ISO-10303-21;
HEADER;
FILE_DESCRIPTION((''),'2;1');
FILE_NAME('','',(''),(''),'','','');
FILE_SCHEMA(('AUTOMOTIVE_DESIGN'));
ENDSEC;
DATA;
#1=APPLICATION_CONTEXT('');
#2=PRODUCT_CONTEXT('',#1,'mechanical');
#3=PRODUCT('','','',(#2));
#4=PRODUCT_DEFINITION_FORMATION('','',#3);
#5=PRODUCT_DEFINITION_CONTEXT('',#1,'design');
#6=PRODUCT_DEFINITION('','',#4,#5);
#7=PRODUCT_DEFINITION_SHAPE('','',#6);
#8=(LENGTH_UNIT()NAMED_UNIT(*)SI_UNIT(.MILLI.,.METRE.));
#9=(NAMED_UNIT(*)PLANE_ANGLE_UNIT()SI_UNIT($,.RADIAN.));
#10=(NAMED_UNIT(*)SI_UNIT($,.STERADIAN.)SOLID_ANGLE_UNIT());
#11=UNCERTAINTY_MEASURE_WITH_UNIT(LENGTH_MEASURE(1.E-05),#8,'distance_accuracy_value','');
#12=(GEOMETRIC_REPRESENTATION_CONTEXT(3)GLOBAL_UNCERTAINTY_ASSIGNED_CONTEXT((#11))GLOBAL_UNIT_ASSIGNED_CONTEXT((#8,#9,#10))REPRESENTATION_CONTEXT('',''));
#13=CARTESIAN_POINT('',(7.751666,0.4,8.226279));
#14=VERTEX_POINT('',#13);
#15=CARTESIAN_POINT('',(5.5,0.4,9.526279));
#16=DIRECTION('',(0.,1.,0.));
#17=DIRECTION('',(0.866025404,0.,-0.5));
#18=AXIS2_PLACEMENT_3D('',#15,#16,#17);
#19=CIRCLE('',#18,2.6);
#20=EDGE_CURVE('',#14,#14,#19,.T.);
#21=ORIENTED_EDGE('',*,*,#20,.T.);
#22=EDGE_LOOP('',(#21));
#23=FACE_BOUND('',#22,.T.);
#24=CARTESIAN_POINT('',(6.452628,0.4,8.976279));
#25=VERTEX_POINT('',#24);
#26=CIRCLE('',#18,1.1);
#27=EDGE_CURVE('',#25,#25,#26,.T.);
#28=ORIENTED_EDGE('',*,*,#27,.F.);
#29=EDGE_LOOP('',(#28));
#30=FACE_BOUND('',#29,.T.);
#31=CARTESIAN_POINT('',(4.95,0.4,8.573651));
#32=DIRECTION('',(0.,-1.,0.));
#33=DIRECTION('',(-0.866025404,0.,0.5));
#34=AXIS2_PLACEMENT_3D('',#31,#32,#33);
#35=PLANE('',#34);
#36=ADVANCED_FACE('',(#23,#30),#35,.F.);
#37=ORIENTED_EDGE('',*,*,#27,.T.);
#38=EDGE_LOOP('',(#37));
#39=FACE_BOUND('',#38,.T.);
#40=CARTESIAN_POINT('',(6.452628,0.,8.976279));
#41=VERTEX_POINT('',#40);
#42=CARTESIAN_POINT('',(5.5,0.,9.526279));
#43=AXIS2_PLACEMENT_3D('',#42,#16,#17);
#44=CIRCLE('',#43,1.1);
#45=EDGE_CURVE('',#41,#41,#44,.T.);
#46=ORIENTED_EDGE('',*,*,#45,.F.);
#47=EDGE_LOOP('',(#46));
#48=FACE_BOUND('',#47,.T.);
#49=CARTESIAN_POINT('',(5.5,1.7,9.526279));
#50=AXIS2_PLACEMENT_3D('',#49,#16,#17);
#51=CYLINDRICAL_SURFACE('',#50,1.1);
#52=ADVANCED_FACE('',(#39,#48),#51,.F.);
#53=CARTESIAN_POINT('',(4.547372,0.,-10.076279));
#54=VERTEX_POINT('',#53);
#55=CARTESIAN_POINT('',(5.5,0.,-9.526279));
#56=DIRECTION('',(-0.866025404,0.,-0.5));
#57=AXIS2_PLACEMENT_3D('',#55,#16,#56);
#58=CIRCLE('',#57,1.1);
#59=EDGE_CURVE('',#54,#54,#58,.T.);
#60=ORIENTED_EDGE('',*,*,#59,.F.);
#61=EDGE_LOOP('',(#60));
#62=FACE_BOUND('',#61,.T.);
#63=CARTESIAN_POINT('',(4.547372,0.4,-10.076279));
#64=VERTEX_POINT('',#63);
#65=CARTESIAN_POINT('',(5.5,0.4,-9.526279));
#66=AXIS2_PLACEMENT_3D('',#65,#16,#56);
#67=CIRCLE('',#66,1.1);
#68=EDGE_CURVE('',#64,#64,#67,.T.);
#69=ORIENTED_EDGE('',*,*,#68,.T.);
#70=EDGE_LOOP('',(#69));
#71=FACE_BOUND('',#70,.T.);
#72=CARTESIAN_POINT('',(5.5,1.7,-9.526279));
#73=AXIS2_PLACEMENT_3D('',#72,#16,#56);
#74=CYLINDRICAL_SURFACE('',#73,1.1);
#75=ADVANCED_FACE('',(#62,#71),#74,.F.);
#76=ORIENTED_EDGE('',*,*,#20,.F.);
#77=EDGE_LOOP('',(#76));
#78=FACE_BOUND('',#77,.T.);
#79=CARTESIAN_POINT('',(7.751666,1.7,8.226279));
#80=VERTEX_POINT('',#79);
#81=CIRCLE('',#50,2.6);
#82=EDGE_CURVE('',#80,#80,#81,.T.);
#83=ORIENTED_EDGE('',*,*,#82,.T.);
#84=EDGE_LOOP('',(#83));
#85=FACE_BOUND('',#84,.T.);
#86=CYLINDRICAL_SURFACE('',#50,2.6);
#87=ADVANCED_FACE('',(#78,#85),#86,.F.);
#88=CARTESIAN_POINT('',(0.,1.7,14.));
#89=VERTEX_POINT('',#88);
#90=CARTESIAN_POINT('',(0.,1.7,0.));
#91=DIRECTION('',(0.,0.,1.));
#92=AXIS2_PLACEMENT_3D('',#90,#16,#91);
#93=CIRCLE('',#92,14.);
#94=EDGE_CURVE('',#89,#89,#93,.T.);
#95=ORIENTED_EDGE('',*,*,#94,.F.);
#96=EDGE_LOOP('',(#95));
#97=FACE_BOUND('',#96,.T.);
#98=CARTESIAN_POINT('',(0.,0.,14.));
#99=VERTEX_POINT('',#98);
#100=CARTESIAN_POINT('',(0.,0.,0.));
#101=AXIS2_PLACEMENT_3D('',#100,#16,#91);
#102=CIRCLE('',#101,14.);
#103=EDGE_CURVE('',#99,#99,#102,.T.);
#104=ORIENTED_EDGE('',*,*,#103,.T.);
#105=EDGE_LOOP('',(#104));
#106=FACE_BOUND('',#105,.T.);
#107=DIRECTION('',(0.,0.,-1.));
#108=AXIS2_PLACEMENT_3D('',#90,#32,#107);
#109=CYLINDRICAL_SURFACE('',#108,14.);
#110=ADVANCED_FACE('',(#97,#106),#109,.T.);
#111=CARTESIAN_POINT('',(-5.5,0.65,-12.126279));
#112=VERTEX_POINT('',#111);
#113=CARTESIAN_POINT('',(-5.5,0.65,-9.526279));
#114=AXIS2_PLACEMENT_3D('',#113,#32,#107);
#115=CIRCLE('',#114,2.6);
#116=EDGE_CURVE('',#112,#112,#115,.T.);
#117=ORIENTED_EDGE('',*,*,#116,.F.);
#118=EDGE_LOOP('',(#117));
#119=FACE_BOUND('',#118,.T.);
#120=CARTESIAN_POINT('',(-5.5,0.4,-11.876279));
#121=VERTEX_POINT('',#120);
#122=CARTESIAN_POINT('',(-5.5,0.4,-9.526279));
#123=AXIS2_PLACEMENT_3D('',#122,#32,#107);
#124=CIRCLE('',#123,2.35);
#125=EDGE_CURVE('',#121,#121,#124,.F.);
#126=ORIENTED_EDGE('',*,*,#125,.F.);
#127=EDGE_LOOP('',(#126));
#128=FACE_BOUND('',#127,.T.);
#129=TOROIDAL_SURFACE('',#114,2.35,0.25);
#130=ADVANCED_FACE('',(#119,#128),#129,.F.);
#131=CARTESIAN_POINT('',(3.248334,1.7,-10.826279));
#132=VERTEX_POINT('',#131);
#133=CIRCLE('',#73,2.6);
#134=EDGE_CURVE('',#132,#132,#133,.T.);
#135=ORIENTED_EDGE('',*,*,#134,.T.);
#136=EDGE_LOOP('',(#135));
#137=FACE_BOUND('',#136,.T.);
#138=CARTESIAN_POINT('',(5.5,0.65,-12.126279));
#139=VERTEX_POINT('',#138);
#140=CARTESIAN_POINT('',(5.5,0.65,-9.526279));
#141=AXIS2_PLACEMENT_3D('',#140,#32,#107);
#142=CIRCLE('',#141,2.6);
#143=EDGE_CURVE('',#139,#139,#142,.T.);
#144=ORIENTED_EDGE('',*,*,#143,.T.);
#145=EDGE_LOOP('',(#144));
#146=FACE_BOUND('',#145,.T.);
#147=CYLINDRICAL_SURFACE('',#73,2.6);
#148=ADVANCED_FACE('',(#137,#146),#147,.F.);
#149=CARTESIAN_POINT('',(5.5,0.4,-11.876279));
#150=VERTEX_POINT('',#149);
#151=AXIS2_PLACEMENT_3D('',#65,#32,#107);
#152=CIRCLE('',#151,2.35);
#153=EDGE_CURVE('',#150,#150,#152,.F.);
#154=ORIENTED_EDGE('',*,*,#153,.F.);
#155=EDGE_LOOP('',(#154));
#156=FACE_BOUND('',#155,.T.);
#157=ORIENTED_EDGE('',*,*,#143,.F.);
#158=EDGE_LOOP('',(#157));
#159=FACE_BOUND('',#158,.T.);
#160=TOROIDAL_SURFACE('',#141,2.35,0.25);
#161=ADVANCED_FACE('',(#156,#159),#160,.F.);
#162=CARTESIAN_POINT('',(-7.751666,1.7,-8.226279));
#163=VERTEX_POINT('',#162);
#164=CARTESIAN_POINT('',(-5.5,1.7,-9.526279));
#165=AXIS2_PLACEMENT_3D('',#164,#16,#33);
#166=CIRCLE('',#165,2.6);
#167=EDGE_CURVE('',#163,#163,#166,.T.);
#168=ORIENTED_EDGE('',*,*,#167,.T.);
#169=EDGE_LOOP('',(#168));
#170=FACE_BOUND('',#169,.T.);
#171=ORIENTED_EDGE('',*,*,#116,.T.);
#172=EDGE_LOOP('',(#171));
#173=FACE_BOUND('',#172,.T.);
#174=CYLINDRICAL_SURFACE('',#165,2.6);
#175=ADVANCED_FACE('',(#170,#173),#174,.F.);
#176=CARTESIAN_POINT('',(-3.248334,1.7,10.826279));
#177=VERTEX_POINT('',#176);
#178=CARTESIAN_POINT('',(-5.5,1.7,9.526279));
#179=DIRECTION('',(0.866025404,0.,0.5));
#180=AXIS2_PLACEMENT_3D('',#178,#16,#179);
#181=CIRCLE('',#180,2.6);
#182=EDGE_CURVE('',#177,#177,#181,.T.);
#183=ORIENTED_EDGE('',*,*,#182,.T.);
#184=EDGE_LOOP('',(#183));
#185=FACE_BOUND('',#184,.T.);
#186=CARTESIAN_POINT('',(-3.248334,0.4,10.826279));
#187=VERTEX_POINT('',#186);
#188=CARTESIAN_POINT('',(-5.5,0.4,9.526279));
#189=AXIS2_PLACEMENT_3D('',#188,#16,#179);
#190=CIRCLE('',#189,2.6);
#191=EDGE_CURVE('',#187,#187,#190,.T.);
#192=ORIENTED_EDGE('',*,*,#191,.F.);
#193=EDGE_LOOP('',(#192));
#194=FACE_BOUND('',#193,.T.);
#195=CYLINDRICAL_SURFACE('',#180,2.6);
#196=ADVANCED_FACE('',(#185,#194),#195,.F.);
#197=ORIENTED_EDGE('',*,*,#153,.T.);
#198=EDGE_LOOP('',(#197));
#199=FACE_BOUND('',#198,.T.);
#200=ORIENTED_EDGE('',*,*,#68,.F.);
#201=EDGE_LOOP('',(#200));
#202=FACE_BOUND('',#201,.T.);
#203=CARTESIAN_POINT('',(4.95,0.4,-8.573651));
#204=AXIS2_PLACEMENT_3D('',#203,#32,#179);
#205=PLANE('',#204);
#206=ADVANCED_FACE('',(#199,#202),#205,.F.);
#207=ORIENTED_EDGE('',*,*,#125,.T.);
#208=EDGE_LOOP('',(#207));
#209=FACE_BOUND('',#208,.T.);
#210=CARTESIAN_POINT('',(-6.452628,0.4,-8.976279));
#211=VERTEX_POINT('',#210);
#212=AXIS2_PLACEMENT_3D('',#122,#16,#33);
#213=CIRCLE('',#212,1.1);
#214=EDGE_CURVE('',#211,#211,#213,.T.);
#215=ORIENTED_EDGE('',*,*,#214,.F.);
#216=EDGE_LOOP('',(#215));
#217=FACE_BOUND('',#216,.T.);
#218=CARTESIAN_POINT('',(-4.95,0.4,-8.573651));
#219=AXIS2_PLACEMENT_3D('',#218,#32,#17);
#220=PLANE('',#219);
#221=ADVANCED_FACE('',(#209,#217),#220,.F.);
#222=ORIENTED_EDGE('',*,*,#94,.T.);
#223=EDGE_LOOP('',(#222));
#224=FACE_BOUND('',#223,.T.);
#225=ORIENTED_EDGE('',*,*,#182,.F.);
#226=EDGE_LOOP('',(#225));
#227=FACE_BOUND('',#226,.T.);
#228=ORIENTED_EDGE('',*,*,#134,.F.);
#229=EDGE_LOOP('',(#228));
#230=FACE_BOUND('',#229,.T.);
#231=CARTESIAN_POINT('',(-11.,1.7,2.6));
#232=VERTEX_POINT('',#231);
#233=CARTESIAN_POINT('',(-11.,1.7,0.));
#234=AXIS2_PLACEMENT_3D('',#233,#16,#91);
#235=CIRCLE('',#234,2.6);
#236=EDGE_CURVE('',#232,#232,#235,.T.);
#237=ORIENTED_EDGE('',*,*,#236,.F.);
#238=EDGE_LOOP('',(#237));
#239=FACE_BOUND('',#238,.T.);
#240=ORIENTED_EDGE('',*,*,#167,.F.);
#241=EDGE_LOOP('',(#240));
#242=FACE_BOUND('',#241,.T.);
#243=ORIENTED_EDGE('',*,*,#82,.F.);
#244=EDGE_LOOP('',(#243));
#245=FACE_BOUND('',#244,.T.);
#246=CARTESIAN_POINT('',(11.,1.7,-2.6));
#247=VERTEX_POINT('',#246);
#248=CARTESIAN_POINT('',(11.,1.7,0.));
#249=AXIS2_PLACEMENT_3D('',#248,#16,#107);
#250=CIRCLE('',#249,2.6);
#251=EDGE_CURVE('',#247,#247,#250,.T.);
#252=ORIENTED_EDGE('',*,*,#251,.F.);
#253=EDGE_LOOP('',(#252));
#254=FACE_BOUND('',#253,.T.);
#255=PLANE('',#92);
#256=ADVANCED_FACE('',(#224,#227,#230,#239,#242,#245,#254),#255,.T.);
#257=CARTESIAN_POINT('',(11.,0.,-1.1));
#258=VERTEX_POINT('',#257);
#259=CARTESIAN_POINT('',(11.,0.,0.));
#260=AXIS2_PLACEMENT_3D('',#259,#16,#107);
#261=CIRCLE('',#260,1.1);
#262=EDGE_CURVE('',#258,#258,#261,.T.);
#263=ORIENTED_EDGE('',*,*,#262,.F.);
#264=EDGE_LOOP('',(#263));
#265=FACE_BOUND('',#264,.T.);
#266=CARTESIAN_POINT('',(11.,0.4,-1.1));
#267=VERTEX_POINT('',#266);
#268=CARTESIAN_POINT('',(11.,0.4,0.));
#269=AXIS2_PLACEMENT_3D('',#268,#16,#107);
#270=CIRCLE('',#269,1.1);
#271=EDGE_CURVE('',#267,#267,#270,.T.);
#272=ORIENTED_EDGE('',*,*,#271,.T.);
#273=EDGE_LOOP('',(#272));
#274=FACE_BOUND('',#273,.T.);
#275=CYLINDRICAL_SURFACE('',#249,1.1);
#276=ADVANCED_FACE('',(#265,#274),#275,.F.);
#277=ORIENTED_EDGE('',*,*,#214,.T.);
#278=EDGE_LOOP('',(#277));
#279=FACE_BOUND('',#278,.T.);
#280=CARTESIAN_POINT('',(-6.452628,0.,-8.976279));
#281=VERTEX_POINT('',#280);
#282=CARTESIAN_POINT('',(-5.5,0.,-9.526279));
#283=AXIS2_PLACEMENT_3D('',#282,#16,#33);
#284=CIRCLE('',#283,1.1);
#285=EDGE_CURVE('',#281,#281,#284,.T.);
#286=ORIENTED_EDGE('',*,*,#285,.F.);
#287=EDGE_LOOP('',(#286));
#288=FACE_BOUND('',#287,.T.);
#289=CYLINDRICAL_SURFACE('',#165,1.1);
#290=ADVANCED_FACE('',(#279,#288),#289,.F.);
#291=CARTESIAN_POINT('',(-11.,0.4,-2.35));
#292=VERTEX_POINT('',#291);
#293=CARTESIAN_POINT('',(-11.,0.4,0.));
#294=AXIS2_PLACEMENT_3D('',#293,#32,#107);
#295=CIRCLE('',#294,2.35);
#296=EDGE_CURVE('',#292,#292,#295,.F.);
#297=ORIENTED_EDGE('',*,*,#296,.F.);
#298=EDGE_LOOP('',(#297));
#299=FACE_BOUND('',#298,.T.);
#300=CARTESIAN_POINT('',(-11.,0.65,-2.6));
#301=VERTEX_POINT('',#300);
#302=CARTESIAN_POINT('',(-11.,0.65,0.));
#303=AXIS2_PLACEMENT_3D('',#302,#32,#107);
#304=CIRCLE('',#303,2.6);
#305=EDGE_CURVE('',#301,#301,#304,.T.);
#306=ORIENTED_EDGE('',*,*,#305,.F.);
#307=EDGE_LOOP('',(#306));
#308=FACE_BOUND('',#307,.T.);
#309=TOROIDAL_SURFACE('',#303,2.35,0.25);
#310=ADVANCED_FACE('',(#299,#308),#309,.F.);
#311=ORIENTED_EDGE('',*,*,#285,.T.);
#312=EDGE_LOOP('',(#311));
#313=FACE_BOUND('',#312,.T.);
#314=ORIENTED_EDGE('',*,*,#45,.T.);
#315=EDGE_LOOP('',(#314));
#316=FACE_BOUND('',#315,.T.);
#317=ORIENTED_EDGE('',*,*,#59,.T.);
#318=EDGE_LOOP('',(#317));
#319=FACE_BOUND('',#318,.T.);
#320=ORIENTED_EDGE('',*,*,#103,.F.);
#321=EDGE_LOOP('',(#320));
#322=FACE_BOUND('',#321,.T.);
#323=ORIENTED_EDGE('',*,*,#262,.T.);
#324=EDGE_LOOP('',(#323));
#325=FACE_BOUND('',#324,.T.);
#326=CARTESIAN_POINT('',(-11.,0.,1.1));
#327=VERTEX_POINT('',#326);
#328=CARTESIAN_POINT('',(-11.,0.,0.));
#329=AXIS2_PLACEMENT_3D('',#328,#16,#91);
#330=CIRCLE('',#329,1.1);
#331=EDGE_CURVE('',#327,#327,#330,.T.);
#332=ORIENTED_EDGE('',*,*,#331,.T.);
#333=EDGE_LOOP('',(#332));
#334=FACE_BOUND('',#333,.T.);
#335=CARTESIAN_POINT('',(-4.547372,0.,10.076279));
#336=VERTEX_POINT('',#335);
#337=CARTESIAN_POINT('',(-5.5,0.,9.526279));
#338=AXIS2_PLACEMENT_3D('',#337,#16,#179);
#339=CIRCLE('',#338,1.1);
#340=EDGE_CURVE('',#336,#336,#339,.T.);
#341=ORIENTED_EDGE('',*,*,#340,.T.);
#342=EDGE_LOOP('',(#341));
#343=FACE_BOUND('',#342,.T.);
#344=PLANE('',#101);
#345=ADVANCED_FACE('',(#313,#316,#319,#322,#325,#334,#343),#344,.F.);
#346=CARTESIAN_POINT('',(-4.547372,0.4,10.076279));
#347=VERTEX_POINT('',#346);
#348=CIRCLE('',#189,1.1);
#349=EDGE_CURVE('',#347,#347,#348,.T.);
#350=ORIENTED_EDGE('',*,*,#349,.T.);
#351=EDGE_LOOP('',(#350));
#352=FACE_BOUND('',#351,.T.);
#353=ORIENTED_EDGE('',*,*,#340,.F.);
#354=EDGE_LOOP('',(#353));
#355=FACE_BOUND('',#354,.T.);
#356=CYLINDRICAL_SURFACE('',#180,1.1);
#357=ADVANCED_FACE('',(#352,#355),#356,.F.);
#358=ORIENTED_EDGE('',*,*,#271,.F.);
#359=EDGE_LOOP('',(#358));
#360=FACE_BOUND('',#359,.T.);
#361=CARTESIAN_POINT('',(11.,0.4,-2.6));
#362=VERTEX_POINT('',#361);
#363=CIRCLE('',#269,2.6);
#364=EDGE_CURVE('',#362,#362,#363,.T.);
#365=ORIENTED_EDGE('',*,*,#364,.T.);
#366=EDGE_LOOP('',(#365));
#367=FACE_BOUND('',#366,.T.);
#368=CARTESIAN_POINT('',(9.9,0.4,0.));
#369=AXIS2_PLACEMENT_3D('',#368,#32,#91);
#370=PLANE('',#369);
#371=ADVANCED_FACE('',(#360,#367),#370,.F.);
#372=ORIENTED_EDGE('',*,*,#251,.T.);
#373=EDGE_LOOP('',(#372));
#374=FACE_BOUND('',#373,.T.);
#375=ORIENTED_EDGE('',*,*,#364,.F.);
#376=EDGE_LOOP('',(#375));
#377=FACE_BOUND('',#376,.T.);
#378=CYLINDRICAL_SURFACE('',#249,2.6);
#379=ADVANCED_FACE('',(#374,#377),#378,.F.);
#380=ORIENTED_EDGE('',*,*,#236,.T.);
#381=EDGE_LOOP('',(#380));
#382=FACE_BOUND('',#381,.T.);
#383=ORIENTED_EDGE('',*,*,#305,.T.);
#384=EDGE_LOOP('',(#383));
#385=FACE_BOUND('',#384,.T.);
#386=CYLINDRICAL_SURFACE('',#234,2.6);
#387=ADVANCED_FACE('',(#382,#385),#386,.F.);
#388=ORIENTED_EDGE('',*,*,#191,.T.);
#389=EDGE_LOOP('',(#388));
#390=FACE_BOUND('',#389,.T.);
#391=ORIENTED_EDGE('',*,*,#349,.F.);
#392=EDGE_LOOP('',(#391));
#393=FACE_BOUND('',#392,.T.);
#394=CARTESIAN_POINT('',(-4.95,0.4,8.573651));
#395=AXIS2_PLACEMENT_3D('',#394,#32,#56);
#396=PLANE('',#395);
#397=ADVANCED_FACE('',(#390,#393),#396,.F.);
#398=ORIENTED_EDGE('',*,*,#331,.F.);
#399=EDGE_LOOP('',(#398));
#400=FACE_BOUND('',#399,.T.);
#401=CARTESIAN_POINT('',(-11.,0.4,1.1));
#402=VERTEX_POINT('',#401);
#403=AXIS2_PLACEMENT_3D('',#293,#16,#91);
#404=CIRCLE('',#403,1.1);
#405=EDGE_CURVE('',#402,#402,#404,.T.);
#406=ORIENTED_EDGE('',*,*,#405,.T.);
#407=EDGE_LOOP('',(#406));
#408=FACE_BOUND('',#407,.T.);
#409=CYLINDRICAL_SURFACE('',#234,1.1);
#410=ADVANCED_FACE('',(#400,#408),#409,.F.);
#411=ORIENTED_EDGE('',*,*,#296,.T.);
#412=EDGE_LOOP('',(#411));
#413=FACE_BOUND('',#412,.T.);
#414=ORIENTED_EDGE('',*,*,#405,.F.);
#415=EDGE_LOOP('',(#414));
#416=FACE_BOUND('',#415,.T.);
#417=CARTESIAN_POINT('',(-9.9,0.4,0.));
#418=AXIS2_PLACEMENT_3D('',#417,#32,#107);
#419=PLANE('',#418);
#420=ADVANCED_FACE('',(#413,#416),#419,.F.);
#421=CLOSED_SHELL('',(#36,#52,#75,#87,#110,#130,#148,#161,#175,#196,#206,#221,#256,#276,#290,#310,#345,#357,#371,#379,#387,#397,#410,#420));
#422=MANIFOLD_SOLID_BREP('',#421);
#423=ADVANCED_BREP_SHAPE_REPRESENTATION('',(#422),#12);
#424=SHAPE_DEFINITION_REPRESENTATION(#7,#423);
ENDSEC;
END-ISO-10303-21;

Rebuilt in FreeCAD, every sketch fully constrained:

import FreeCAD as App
import Part
import Sketcher
from FreeCAD import Vector
Q = App.Units.Quantity


def edges_at(feature, points):
    """Names of the edges that pass closest to the given points."""
    edges = feature.Shape.Edges
    near = lambda p: min(range(len(edges)), key=lambda i: edges[i].distToShape(Part.Vertex(*p))[0])
    return sorted({f"Edge{near(p) + 1}" for p in points})

doc = App.newDocument("Part")
body = doc.addObject("PartDesign::Body", "Body")

# Sketch on XZ plane
sketch1 = body.newObject("Sketcher::SketchObject", "Sketch")
sketch1.AttachmentSupport = (doc.getObject("XZ_Plane"), [""])
sketch1.MapMode = "FlatFace"
sketch1.addGeometry(Part.Circle(Vector(0, 0, 0), Vector(0, 0, 1), 14), False)
sketch1.addConstraint([
    Sketcher.Constraint("Coincident", 0, 3, -1, 1),
    Sketcher.Constraint("Diameter", 0, 28.0),
])
pad1 = body.newObject("PartDesign::Pad", "Pad")
pad1.Profile = sketch1
pad1.Length = 1.7
pad1.Reversed = True

# Sketch on YZ plane
sketch2 = body.newObject("Sketcher::SketchObject", "Sketch001")
sketch2.AttachmentSupport = (doc.getObject("YZ_Plane"), [""])
sketch2.MapMode = "FlatFace"
sketch2.AttachmentOffset = App.Placement(Vector(0, 0, -11), App.Rotation())
sketch2.addGeometry([
    Part.LineSegment(Vector(-4, 0, 0), Vector(1.7, 0, 0)),  # 0
    Part.LineSegment(Vector(1.7, 0, 0), Vector(1.7, 2.6, 0)),  # 1
    Part.LineSegment(Vector(1.7, 2.6, 0), Vector(0.4, 2.6, 0)),  # 2
    Part.LineSegment(Vector(0.4, 2.6, 0), Vector(0.4, 1.1, 0)),  # 3
    Part.LineSegment(Vector(0.4, 1.1, 0), Vector(-3.3, 1.1, 0)),  # 4
    Part.LineSegment(Vector(-3.3, 1.1, 0), Vector(-4, 0, 0)),  # 5
], False)
sketch2.addConstraint([
    Sketcher.Constraint("Coincident", 0, 2, 1, 1),
    Sketcher.Constraint("Coincident", 1, 2, 2, 1),
    Sketcher.Constraint("Coincident", 2, 2, 3, 1),
    Sketcher.Constraint("Coincident", 3, 2, 4, 1),
    Sketcher.Constraint("Coincident", 4, 2, 5, 1),
    Sketcher.Constraint("Coincident", 5, 2, 0, 1),
    Sketcher.Constraint("Horizontal", 0),
    Sketcher.Constraint("Vertical", 1),
    Sketcher.Constraint("Horizontal", 2),
    Sketcher.Constraint("Vertical", 3),
    Sketcher.Constraint("Horizontal", 4),
    Sketcher.Constraint("PointOnObject", 0, 2, -1),
    Sketcher.Constraint("Angle", 5, Q("-121 deg")),
    Sketcher.Constraint("DistanceX", 2, 2, 2, 1, 1.3),
    Sketcher.Constraint("DistanceX", 4, 2, 4, 1, 3.7),
    Sketcher.Constraint("DistanceY", 1, 1, 1, 2, 2.6),
    Sketcher.Constraint("DistanceY", 3, 2, 3, 1, 1.5),
    Sketcher.Constraint("DistanceX", -1, 1, 0, 2, 1.7),
])
groove = body.newObject("PartDesign::Groove", "Groove")
groove.Profile = sketch2
groove.ReferenceAxis = (sketch2, ["H_Axis"])
groove.Angle = 360
doc.recompute()

polarpattern = body.newObject("PartDesign::PolarPattern", "PolarPattern")
polarpattern.Originals = [groove]
polarpattern.Axis = (doc.getObject("Y_Axis"), [""])
polarpattern.Angle = 360
polarpattern.Occurrences = 6
body.Tip = polarpattern
doc.recompute()

fillet = body.newObject("PartDesign::Fillet", "Fillet")
fillet.Base = (polarpattern, edges_at(polarpattern, [(-3.248, 0.4, -10.826), (7.752, 0.4, -8.226), (-11, 0.4, -2.6)]))
fillet.Radius = 0.25

doc.recompute()
